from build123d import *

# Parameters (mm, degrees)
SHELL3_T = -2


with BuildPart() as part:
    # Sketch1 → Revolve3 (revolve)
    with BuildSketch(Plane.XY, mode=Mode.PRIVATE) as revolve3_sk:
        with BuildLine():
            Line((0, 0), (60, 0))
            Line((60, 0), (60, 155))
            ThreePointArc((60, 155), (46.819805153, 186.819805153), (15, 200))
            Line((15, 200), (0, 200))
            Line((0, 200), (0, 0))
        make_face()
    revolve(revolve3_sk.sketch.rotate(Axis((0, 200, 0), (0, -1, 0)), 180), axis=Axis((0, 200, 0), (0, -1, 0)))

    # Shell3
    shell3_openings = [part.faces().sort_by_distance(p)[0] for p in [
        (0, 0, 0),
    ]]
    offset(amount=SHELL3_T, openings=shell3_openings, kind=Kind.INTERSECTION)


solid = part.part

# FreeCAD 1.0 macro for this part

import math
import FreeCAD as App
import Part
import Sketcher

V = App.Vector
Q = App.Units.Quantity


def faces_at(feature, points):
    """Names of the faces that lie closest to the given points."""
    faces = feature.Shape.Faces
    near = lambda p: min(range(len(faces)), key=lambda i: faces[i].distToShape(Part.Vertex(*p))[0])
    return sorted({f"Face{near(p) + 1}" for p in points})

doc = App.newDocument("Part")
body = doc.addObject("PartDesign::Body", "Body")

# Sketch on XY plane
sketch1 = body.newObject("Sketcher::SketchObject", "Sketch")
sketch1.AttachmentSupport = (doc.getObject("XY_Plane"), [""])
sketch1.MapMode = "FlatFace"
sketch1.addGeometry(Part.LineSegment(V(0, 0, 0), V(60, 0, 0)), False)
sketch1.addGeometry(Part.LineSegment(V(60, 0, 0), V(60, 155, 0)), False)
sketch1.addGeometry(Part.ArcOfCircle(Part.Circle(V(15, 155, 0), V(0, 0, 1), 45), math.radians(0), math.radians(90)), False)
sketch1.addGeometry(Part.LineSegment(V(15, 200, 0), V(0, 200, 0)), False)
sketch1.addGeometry(Part.LineSegment(V(0, 200, 0), V(0, 0, 0)), False)
sketch1.addConstraint(Sketcher.Constraint("Coincident", 0, 2, 1, 1))
sketch1.addConstraint(Sketcher.Constraint("Tangent", 1, 2, 2, 1))
sketch1.addConstraint(Sketcher.Constraint("Tangent", 2, 2, 3, 1))
sketch1.addConstraint(Sketcher.Constraint("Coincident", 3, 2, 4, 1))
sketch1.addConstraint(Sketcher.Constraint("Coincident", 4, 2, 0, 1))
sketch1.addConstraint(Sketcher.Constraint("Horizontal", 0))
sketch1.addConstraint(Sketcher.Constraint("Vertical", 1))
sketch1.addConstraint(Sketcher.Constraint("Horizontal", 3))
sketch1.addConstraint(Sketcher.Constraint("Vertical", 4))
sketch1.addConstraint(Sketcher.Constraint("Coincident", 4, 2, -1, 1))
sketch1.addConstraint(Sketcher.Constraint("Radius", 2, Q("45 mm")))
sketch1.addConstraint(Sketcher.Constraint("DistanceX", 0, 1, 0, 2, Q("60 mm")))
sketch1.addConstraint(Sketcher.Constraint("DistanceY", 1, 1, 1, 2, Q("155 mm")))
revolution = body.newObject("PartDesign::Revolution", "Revolution")
revolution.Profile = sketch1
revolution.ReferenceAxis = (sketch1, ["V_Axis"])
revolution.Angle = 360
doc.recompute()

thickness = body.newObject("PartDesign::Thickness", "Thickness")
thickness.Base = (revolution, faces_at(revolution, [(0, 0, 0)]))
thickness.Value = 2
thickness.Reversed = True
thickness.Join = "Intersection"

doc.recompute()
